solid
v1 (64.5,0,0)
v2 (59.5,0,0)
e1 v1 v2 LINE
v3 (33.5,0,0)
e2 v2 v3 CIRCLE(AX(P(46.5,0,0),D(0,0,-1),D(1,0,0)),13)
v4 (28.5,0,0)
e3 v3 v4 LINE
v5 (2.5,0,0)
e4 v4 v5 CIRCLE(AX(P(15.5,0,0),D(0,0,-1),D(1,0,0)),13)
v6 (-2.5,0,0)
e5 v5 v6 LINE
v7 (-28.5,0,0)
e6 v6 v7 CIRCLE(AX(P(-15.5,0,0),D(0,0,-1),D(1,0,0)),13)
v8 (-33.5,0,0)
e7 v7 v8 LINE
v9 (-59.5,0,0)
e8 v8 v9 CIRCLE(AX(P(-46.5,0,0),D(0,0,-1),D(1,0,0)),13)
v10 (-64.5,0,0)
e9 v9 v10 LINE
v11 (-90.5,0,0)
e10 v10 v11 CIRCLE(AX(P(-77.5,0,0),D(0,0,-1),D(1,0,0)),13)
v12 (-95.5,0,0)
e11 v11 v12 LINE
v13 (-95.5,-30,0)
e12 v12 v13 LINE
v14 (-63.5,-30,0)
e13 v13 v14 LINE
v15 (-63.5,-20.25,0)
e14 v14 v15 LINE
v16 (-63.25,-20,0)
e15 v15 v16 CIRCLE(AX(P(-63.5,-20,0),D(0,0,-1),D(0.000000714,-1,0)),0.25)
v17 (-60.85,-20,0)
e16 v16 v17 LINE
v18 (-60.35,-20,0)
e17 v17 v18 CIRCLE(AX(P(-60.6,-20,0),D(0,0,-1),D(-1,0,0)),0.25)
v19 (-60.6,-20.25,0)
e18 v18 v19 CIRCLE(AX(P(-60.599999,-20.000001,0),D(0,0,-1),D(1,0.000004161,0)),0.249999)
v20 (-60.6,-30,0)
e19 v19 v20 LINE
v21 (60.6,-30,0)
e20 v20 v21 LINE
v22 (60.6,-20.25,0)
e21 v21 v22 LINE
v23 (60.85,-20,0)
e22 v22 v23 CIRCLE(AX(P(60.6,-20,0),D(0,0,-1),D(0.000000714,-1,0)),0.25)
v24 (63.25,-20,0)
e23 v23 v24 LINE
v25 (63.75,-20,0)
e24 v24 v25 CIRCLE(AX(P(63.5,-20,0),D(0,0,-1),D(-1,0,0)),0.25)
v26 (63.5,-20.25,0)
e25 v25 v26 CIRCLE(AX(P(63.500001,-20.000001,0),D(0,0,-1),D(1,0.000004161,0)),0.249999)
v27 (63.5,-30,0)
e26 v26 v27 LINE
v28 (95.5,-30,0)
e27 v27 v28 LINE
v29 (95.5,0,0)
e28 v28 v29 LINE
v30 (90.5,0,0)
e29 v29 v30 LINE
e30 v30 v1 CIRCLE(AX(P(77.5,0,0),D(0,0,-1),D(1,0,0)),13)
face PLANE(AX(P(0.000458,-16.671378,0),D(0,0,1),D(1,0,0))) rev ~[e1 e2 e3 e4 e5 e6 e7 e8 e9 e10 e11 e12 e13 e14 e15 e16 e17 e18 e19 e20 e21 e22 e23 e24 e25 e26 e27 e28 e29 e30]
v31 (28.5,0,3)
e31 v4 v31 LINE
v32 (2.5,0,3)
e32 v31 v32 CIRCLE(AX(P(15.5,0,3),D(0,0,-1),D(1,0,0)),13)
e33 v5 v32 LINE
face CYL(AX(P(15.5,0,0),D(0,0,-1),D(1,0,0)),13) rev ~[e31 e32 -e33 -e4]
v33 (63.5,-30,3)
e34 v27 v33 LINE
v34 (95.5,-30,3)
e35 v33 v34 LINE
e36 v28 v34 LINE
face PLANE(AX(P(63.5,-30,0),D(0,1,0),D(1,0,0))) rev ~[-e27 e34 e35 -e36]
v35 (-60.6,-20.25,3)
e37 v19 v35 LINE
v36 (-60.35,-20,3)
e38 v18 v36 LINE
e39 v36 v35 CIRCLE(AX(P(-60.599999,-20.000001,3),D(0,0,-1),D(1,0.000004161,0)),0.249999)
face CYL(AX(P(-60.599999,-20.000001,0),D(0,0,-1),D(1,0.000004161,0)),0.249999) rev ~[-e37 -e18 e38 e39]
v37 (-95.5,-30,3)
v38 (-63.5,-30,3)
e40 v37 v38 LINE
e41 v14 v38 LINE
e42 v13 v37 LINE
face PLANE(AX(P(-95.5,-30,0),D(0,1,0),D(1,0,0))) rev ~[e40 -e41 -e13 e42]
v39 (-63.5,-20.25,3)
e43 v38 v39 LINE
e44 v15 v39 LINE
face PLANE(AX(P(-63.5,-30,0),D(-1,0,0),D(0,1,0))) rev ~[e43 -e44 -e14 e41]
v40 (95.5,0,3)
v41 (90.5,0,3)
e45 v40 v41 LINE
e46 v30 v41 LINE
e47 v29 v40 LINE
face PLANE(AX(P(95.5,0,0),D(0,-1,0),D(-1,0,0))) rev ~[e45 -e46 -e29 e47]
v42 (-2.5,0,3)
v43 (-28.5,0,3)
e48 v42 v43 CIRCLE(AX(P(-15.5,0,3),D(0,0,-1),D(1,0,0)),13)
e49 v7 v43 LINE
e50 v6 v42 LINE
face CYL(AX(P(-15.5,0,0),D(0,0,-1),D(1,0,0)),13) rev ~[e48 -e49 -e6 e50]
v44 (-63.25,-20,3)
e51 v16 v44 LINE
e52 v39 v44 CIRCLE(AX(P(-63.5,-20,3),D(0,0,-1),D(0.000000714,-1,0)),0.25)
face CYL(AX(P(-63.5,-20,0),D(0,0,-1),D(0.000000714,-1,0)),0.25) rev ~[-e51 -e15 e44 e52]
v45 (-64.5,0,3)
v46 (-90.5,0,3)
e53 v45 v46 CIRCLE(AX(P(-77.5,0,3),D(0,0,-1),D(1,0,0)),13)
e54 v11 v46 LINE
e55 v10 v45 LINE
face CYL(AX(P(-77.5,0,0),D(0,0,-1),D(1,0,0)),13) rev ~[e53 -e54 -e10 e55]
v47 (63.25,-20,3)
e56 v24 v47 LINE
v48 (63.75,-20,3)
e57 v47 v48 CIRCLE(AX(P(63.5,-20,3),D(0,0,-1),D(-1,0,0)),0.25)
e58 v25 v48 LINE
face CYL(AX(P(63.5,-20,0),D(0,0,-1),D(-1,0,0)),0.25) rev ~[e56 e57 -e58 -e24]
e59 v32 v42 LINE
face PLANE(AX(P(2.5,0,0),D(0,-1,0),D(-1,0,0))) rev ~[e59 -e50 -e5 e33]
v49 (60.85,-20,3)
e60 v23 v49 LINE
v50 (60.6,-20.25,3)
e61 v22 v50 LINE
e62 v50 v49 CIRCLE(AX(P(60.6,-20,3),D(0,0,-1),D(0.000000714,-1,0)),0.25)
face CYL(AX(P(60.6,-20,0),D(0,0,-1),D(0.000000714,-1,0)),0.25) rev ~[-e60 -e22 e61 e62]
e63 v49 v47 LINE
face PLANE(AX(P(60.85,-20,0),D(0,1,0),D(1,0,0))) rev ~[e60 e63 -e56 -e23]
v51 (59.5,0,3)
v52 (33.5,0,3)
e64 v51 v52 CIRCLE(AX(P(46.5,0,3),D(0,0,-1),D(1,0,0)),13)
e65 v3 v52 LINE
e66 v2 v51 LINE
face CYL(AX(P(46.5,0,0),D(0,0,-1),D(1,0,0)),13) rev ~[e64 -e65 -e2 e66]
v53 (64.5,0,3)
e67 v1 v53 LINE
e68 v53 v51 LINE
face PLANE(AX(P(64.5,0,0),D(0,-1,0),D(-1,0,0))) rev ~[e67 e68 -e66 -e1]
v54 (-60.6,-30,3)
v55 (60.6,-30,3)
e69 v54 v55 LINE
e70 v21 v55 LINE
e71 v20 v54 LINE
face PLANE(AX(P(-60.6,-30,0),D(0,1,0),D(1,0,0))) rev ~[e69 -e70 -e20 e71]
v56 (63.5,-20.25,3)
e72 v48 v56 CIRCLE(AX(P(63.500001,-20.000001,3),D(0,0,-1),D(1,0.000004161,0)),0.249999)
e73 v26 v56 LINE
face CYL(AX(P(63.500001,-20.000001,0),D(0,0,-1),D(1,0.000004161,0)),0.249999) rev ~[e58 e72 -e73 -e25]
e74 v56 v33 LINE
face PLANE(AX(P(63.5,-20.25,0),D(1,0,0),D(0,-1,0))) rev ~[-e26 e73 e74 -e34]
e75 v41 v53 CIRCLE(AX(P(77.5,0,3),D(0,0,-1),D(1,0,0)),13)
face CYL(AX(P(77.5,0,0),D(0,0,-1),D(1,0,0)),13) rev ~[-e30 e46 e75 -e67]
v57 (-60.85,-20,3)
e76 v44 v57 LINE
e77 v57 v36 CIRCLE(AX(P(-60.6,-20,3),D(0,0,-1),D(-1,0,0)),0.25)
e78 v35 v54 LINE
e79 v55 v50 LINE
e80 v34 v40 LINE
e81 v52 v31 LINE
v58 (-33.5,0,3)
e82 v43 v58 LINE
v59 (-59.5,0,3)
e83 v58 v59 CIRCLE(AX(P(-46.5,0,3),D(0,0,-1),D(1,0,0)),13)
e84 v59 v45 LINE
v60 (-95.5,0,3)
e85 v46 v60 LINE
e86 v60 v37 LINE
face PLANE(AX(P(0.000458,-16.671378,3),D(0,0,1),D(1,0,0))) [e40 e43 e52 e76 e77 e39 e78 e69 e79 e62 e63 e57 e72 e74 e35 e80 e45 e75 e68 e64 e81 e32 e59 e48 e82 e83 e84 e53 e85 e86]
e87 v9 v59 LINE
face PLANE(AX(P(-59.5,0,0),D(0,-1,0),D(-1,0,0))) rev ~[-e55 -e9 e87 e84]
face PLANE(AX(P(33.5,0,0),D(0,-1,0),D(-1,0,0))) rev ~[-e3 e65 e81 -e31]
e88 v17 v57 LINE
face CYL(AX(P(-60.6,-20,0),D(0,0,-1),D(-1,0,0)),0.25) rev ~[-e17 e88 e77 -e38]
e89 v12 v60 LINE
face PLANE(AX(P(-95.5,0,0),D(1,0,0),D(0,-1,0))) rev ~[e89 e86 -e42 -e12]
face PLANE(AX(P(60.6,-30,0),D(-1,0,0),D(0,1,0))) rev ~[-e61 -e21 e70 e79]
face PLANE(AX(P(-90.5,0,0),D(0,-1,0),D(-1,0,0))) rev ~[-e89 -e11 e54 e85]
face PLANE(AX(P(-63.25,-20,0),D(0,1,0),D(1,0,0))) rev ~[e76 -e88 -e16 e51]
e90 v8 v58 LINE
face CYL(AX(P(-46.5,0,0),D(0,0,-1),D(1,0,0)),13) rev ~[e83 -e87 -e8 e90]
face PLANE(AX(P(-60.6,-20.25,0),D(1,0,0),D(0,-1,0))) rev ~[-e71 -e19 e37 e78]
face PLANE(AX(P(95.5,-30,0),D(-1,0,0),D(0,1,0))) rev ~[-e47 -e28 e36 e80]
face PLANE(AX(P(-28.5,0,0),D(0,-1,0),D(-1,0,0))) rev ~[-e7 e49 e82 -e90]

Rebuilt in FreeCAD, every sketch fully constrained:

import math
import FreeCAD as App
import Part
import Sketcher

doc = App.newDocument("Part")
body = doc.addObject("PartDesign::Body", "Body")

# Sketch on XY plane
sketch1 = body.newObject("Sketcher::SketchObject", "Sketch")
sketch1.AttachmentSupport = (doc.getObject("XY_Plane"), [""])
sketch1.MapMode = "FlatFace"
sketch1.addGeometry([
    Part.LineSegment(App.Vector(95.5, 0, 0), App.Vector(90.5, 0, 0)),  # 0
    Part.ArcOfCircle(Part.Circle(App.Vector(77.5, 0, 0), App.Vector(0, 0, 1), 13), math.radians(180), math.radians(360)),  # 1
    Part.LineSegment(App.Vector(64.5, 0, 0), App.Vector(59.5, 0, 0)),  # 2
    Part.ArcOfCircle(Part.Circle(App.Vector(46.5, 0, 0), App.Vector(0, 0, 1), 13), math.radians(180), math.radians(360)),  # 3
    Part.LineSegment(App.Vector(33.5, 0, 0), App.Vector(28.5, 0, 0)),  # 4
    Part.ArcOfCircle(Part.Circle(App.Vector(15.5, 0, 0), App.Vector(0, 0, 1), 13), math.radians(180), math.radians(360)),  # 5
    Part.LineSegment(App.Vector(2.5, 0, 0), App.Vector(-2.5, 0, 0)),  # 6
    Part.ArcOfCircle(Part.Circle(App.Vector(-15.5, 0, 0), App.Vector(0, 0, 1), 13), math.radians(180), math.radians(360)),  # 7
    Part.LineSegment(App.Vector(-28.5, 0, 0), App.Vector(-33.5, 0, 0)),  # 8
    Part.ArcOfCircle(Part.Circle(App.Vector(-46.5, 0, 0), App.Vector(0, 0, 1), 13), math.radians(180), math.radians(360)),  # 9
    Part.LineSegment(App.Vector(-59.5, 0, 0), App.Vector(-64.5, 0, 0)),  # 10
    Part.ArcOfCircle(Part.Circle(App.Vector(-77.5, 0, 0), App.Vector(0, 0, 1), 13), math.radians(180), math.radians(360)),  # 11
    Part.LineSegment(App.Vector(-90.5, 0, 0), App.Vector(-95.5, 0, 0)),  # 12
    Part.LineSegment(App.Vector(-95.5, 0, 0), App.Vector(-95.5, -30, 0)),  # 13
    Part.LineSegment(App.Vector(-95.5, -30, 0), App.Vector(-63.5, -30, 0)),  # 14
    Part.LineSegment(App.Vector(-63.5, -30, 0), App.Vector(-63.5, -20.25, 0)),  # 15
    Part.ArcOfCircle(Part.Circle(App.Vector(-63.5, -20, 0), App.Vector(0, 0, 1), 0.25), math.radians(0), math.radians(270)),  # 16
    Part.LineSegment(App.Vector(-63.25, -20, 0), App.Vector(-60.85, -20, 0)),  # 17
    Part.ArcOfCircle(Part.Circle(App.Vector(-60.6, -20, 0), App.Vector(0, 0, 1), 0.25), math.radians(0), math.radians(180)),  # 18
    Part.ArcOfCircle(Part.Circle(App.Vector(-60.6, -20, 0), App.Vector(0, 0, 1), 0.25), math.radians(-90), math.radians(0)),  # 19
    Part.LineSegment(App.Vector(-60.6, -20.25, 0), App.Vector(-60.6, -30, 0)),  # 20
    Part.LineSegment(App.Vector(-60.6, -30, 0), App.Vector(60.6, -30, 0)),  # 21
    Part.LineSegment(App.Vector(60.6, -30, 0), App.Vector(60.6, -20.25, 0)),  # 22
    Part.ArcOfCircle(Part.Circle(App.Vector(60.6, -20, 0), App.Vector(0, 0, 1), 0.25), math.radians(0), math.radians(270)),  # 23
    Part.LineSegment(App.Vector(60.85, -20, 0), App.Vector(63.25, -20, 0)),  # 24
    Part.ArcOfCircle(Part.Circle(App.Vector(63.5, -20, 0), App.Vector(0, 0, 1), 0.25), math.radians(0), math.radians(180)),  # 25
    Part.ArcOfCircle(Part.Circle(App.Vector(63.5, -20, 0), App.Vector(0, 0, 1), 0.25), math.radians(-90), math.radians(0)),  # 26
    Part.LineSegment(App.Vector(63.5, -20.25, 0), App.Vector(63.5, -30, 0)),  # 27
    Part.LineSegment(App.Vector(63.5, -30, 0), App.Vector(95.5, -30, 0)),  # 28
    Part.LineSegment(App.Vector(95.5, -30, 0), App.Vector(95.5, 0, 0)),  # 29
], False)
sketch1.addConstraint([
    Sketcher.Constraint("Coincident", 0, 2, 1, 2),
    Sketcher.Constraint("Coincident", 1, 1, 2, 1),
    Sketcher.Constraint("Coincident", 2, 2, 3, 2),
    Sketcher.Constraint("Coincident", 3, 1, 4, 1),
    Sketcher.Constraint("Coincident", 4, 2, 5, 2),
    Sketcher.Constraint("Coincident", 5, 1, 6, 1),
    Sketcher.Constraint("Coincident", 6, 2, 7, 2),
    Sketcher.Constraint("Coincident", 7, 1, 8, 1),
    Sketcher.Constraint("Coincident", 8, 2, 9, 2),
    Sketcher.Constraint("Coincident", 9, 1, 10, 1),
    Sketcher.Constraint("Coincident", 10, 2, 11, 2),
    Sketcher.Constraint("Coincident", 11, 1, 12, 1),
    Sketcher.Constraint("Coincident", 12, 2, 13, 1),
    Sketcher.Constraint("Coincident", 13, 2, 14, 1),
    Sketcher.Constraint("Coincident", 14, 2, 15, 1),
    Sketcher.Constraint("Coincident", 15, 2, 16, 2),
    Sketcher.Constraint("Coincident", 16, 1, 17, 1),
    Sketcher.Constraint("Coincident", 17, 2, 18, 2),
    Sketcher.Constraint("Coincident", 18, 1, 19, 2),
    Sketcher.Constraint("Coincident", 19, 1, 20, 1),
    Sketcher.Constraint("Coincident", 20, 2, 21, 1),
    Sketcher.Constraint("Coincident", 21, 2, 22, 1),
    Sketcher.Constraint("Coincident", 22, 2, 23, 2),
    Sketcher.Constraint("Coincident", 23, 1, 24, 1),
    Sketcher.Constraint("Coincident", 24, 2, 25, 2),
    Sketcher.Constraint("Coincident", 25, 1, 26, 2),
    Sketcher.Constraint("Coincident", 26, 1, 27, 1),
    Sketcher.Constraint("Coincident", 27, 2, 28, 1),
    Sketcher.Constraint("Coincident", 28, 2, 29, 1),
    Sketcher.Constraint("Coincident", 29, 2, 0, 1),
    Sketcher.Constraint("Horizontal", 0),
    Sketcher.Constraint("Horizontal", 2),
    Sketcher.Constraint("Horizontal", 4),
    Sketcher.Constraint("Horizontal", 6),
    Sketcher.Constraint("Horizontal", 8),
    Sketcher.Constraint("Horizontal", 10),
    Sketcher.Constraint("Horizontal", 12),
    Sketcher.Constraint("Vertical", 13),
    Sketcher.Constraint("Horizontal", 14),
    Sketcher.Constraint("Vertical", 15),
    Sketcher.Constraint("Horizontal", 17),
    Sketcher.Constraint("Vertical", 20),
    Sketcher.Constraint("Horizontal", 21),
    Sketcher.Constraint("Vertical", 22),
    Sketcher.Constraint("Horizontal", 24),
    Sketcher.Constraint("Vertical", 27),
    Sketcher.Constraint("Horizontal", 28),
    Sketcher.Constraint("Vertical", 29),
    Sketcher.Constraint("Coincident", 19, 3, 18, 3),
    Sketcher.Constraint("Coincident", 26, 3, 25, 3),
    Sketcher.Constraint("Equal", 1, 3),
    Sketcher.Constraint("Equal", 3, 5),
    Sketcher.Constraint("Equal", 5, 7),
    Sketcher.Constraint("Equal", 7, 9),
    Sketcher.Constraint("Equal", 9, 11),
    Sketcher.Constraint("Equal", 16, 18),
    Sketcher.Constraint("Equal", 19, 23),
    Sketcher.Constraint("Equal", 23, 25),
    Sketcher.Constraint("Symmetric", 5, 3, 7, 3, -1, 1),
    Sketcher.Constraint("Symmetric", 3, 3, 9, 3, -1, 1),
    Sketcher.Constraint("Symmetric", 1, 3, 11, 3, -1, 1),
    Sketcher.Constraint("Symmetric", 12, 2, 29, 2, -1, 1),
    Sketcher.Constraint("Symmetric", 18, 3, 23, 3, -2),
    Sketcher.Constraint("Symmetric", 16, 3, 25, 3, -2),
    Sketcher.Constraint("Symmetric", 14, 2, 27, 2, -2),
    Sketcher.Constraint("PointOnObject", 1, 3, -1),
    Sketcher.Constraint("PointOnObject", 3, 3, -1),
    Sketcher.Constraint("PointOnObject", 5, 3, -1),
    Sketcher.Constraint("PointOnObject", 0, 2, -1),
    Sketcher.Constraint("PointOnObject", 1, 1, -1),
    Sketcher.Constraint("PointOnObject", 3, 1, -1),
    Sketcher.Constraint("PointOnObject", 5, 1, -1),
    Sketcher.Constraint("PointOnObject", 7, 1, -1),
    Sketcher.Constraint("PointOnObject", 9, 1, -1),
    Sketcher.Constraint("Horizontal", 16, 3, 18, 3),
    Sketcher.Constraint("Horizontal", 26, 3, 16, 1),
    Sketcher.Constraint("Horizontal", 17, 2, 18, 1),
    Sketcher.Constraint("Horizontal", 14, 2, 20, 2),
    Sketcher.Constraint("Horizontal", 18, 1, 23, 1),
    Sketcher.Constraint("Horizontal", 24, 2, 25, 1),
    Sketcher.Constraint("Vertical", 16, 3, 14, 2),
    Sketcher.Constraint("Vertical", 18, 3, 19, 1),
    Sketcher.Constraint("Vertical", 23, 3, 21, 2),
    Sketcher.Constraint("Equal", 0, 2),
    Sketcher.Constraint("Equal", 2, 4),
    Sketcher.Constraint("Equal", 4, 6),
    Sketcher.Constraint("Radius", 1, 13.0),
    Sketcher.Constraint("DistanceX", 0, 2, 0, 1, 5.0),
    Sketcher.Constraint("DistanceX", 14, 1, 14, 2, 32.0),
    Sketcher.Constraint("DistanceY", 13, 2, 13, 1, 30.0),
    Sketcher.Constraint("Radius", 16, 0.25),
    Sketcher.Constraint("DistanceX", 17, 1, 17, 2, 2.4),
    Sketcher.Constraint("DistanceY", 16, 3, -1, 1, 20.0),
])
pad1 = body.newObject("PartDesign::Pad", "Pad")
pad1.Profile = sketch1
pad1.Length = 3

doc.recompute()
